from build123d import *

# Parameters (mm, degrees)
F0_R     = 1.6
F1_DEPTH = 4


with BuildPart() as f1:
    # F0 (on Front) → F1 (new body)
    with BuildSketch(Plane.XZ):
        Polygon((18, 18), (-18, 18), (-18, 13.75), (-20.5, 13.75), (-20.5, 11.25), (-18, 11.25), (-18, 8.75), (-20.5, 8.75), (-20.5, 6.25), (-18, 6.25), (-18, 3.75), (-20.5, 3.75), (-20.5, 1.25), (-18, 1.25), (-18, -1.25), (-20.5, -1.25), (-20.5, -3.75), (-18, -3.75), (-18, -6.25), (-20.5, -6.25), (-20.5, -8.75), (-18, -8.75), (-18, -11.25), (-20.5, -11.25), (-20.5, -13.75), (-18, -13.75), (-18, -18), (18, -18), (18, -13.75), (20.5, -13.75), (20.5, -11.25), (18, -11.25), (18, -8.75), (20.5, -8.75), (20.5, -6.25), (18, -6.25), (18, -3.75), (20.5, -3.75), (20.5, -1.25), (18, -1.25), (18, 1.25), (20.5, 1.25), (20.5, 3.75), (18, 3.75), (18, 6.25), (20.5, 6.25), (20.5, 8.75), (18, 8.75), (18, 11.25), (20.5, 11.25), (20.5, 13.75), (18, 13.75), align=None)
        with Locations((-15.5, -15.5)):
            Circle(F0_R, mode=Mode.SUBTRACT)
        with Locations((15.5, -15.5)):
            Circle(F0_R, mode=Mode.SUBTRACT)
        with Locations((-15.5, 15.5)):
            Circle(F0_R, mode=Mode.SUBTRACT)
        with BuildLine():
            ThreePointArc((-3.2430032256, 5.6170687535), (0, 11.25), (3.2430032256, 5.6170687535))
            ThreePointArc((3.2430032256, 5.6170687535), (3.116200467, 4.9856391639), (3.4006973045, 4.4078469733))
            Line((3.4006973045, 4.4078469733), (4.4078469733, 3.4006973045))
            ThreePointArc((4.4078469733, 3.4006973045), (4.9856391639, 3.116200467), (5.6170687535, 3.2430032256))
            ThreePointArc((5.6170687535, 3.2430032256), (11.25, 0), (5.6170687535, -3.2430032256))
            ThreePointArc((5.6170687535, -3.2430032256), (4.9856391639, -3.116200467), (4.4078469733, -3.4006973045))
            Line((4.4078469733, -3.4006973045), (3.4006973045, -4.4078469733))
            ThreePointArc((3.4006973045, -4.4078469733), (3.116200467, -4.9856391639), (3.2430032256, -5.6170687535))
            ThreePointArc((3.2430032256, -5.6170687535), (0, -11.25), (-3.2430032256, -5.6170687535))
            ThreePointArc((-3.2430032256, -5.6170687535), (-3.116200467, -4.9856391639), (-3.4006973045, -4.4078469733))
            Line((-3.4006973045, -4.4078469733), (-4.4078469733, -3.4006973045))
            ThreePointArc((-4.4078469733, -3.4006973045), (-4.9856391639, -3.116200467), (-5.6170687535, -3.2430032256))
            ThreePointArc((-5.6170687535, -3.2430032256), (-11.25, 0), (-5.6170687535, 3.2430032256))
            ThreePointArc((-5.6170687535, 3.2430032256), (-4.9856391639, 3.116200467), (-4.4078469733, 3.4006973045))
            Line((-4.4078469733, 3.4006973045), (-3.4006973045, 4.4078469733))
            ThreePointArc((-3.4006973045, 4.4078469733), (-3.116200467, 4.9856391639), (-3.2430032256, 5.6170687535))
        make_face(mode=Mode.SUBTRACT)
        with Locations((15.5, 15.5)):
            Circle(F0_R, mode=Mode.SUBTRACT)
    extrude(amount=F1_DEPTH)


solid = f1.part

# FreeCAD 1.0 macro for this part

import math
import FreeCAD as App
import Part
import Sketcher

doc = App.newDocument("Part")
body = doc.addObject("PartDesign::Body", "Body")

# Sketch on XZ plane
sketch1 = body.newObject("Sketcher::SketchObject", "Sketch")
sketch1.AttachmentSupport = (doc.getObject("XZ_Plane"), [""])
sketch1.MapMode = "FlatFace"
sketch1.addGeometry([
    Part.LineSegment(App.Vector(18, 18, 0), App.Vector(-18, 18, 0)),  # 0
    Part.LineSegment(App.Vector(-18, 18, 0), App.Vector(-18, 13.8, 0)),  # 1
    Part.LineSegment(App.Vector(-18, 13.8, 0), App.Vector(-20.5, 13.8, 0)),  # 2
    Part.LineSegment(App.Vector(-20.5, 13.8, 0), App.Vector(-20.5, 11.2, 0)),  # 3
    Part.LineSegment(App.Vector(-20.5, 11.2, 0), App.Vector(-18, 11.2, 0)),  # 4
    Part.LineSegment(App.Vector(-18, 11.2, 0), App.Vector(-18, 8.8, 0)),  # 5
    Part.LineSegment(App.Vector(-18, 8.8, 0), App.Vector(-20.5, 8.8, 0)),  # 6
    Part.LineSegment(App.Vector(-20.5, 8.8, 0), App.Vector(-20.5, 6.2, 0)),  # 7
    Part.LineSegment(App.Vector(-20.5, 6.2, 0), App.Vector(-18, 6.2, 0)),  # 8
    Part.LineSegment(App.Vector(-18, 6.2, 0), App.Vector(-18, 3.8, 0)),  # 9
    Part.LineSegment(App.Vector(-18, 3.8, 0), App.Vector(-20.5, 3.8, 0)),  # 10
    Part.LineSegment(App.Vector(-20.5, 3.8, 0), App.Vector(-20.5, 1.2, 0)),  # 11
    Part.LineSegment(App.Vector(-20.5, 1.2, 0), App.Vector(-18, 1.2, 0)),  # 12
    Part.LineSegment(App.Vector(-18, 1.2, 0), App.Vector(-18, -1.2, 0)),  # 13
    Part.LineSegment(App.Vector(-18, -1.2, 0), App.Vector(-20.5, -1.2, 0)),  # 14
    Part.LineSegment(App.Vector(-20.5, -1.2, 0), App.Vector(-20.5, -3.8, 0)),  # 15
    Part.LineSegment(App.Vector(-20.5, -3.8, 0), App.Vector(-18, -3.8, 0)),  # 16
    Part.LineSegment(App.Vector(-18, -3.8, 0), App.Vector(-18, -6.2, 0)),  # 17
    Part.LineSegment(App.Vector(-18, -6.2, 0), App.Vector(-20.5, -6.2, 0)),  # 18
    Part.LineSegment(App.Vector(-20.5, -6.2, 0), App.Vector(-20.5, -8.8, 0)),  # 19
    Part.LineSegment(App.Vector(-20.5, -8.8, 0), App.Vector(-18, -8.8, 0)),  # 20
    Part.LineSegment(App.Vector(-18, -8.8, 0), App.Vector(-18, -11.2, 0)),  # 21
    Part.LineSegment(App.Vector(-18, -11.2, 0), App.Vector(-20.5, -11.2, 0)),  # 22
    Part.LineSegment(App.Vector(-20.5, -11.2, 0), App.Vector(-20.5, -13.8, 0)),  # 23
    Part.LineSegment(App.Vector(-20.5, -13.8, 0), App.Vector(-18, -13.8, 0)),  # 24
    Part.LineSegment(App.Vector(-18, -13.8, 0), App.Vector(-18, -18, 0)),  # 25
    Part.LineSegment(App.Vector(-18, -18, 0), App.Vector(18, -18, 0)),  # 26
    Part.LineSegment(App.Vector(18, -18, 0), App.Vector(18, -13.8, 0)),  # 27
    Part.LineSegment(App.Vector(18, -13.8, 0), App.Vector(20.5, -13.8, 0)),  # 28
    Part.LineSegment(App.Vector(20.5, -13.8, 0), App.Vector(20.5, -11.2, 0)),  # 29
    Part.LineSegment(App.Vector(20.5, -11.2, 0), App.Vector(18, -11.2, 0)),  # 30
    Part.LineSegment(App.Vector(18, -11.2, 0), App.Vector(18, -8.8, 0)),  # 31
    Part.LineSegment(App.Vector(18, -8.8, 0), App.Vector(20.5, -8.8, 0)),  # 32
    Part.LineSegment(App.Vector(20.5, -8.8, 0), App.Vector(20.5, -6.2, 0)),  # 33
    Part.LineSegment(App.Vector(20.5, -6.2, 0), App.Vector(18, -6.2, 0)),  # 34
    Part.LineSegment(App.Vector(18, -6.2, 0), App.Vector(18, -3.8, 0)),  # 35
    Part.LineSegment(App.Vector(18, -3.8, 0), App.Vector(20.5, -3.8, 0)),  # 36
    Part.LineSegment(App.Vector(20.5, -3.8, 0), App.Vector(20.5, -1.2, 0)),  # 37
    Part.LineSegment(App.Vector(20.5, -1.2, 0), App.Vector(18, -1.2, 0)),  # 38
    Part.LineSegment(App.Vector(18, -1.2, 0), App.Vector(18, 1.2, 0)),  # 39
    Part.LineSegment(App.Vector(18, 1.2, 0), App.Vector(20.5, 1.2, 0)),  # 40
    Part.LineSegment(App.Vector(20.5, 1.2, 0), App.Vector(20.5, 3.8, 0)),  # 41
    Part.LineSegment(App.Vector(20.5, 3.8, 0), App.Vector(18, 3.8, 0)),  # 42
    Part.LineSegment(App.Vector(18, 3.8, 0), App.Vector(18, 6.2, 0)),  # 43
    Part.LineSegment(App.Vector(18, 6.2, 0), App.Vector(20.5, 6.2, 0)),  # 44
    Part.LineSegment(App.Vector(20.5, 6.2, 0), App.Vector(20.5, 8.8, 0)),  # 45
    Part.LineSegment(App.Vector(20.5, 8.8, 0), App.Vector(18, 8.8, 0)),  # 46
    Part.LineSegment(App.Vector(18, 8.8, 0), App.Vector(18, 11.2, 0)),  # 47
    Part.LineSegment(App.Vector(18, 11.2, 0), App.Vector(20.5, 11.2, 0)),  # 48
    Part.LineSegment(App.Vector(20.5, 11.2, 0), App.Vector(20.5, 13.8, 0)),  # 49
    Part.LineSegment(App.Vector(20.5, 13.8, 0), App.Vector(18, 13.8, 0)),  # 50
    Part.LineSegment(App.Vector(18, 13.8, 0), App.Vector(18, 18, 0)),  # 51
    Part.Circle(App.Vector(-15.5, -15.5, 0), App.Vector(0, 0, 1), 1.6),  # 52
    Part.Circle(App.Vector(15.5, -15.5, 0), App.Vector(0, 0, 1), 1.6),  # 53
    Part.Circle(App.Vector(-15.5, 15.5, 0), App.Vector(0, 0, 1), 1.6),  # 54
    Part.ArcOfCircle(Part.Circle(App.Vector(-4.1, 5.1, 0), App.Vector(0, 0, 1), 1), math.radians(-45), math.radians(30)),  # 55
    Part.ArcOfCircle(Part.Circle(App.Vector(0, 7.5, 0), App.Vector(0, 0, 1), 3.8), math.radians(-30), math.radians(210)),  # 56
    Part.ArcOfCircle(Part.Circle(App.Vector(4.1, 5.1, 0), App.Vector(0, 0, 1), 1), math.radians(150), math.radians(225)),  # 57
    Part.LineSegment(App.Vector(3.4, 4.4, 0), App.Vector(4.4, 3.4, 0)),  # 58
    Part.ArcOfCircle(Part.Circle(App.Vector(5.1, 4.1, 0), App.Vector(0, 0, 1), 1), math.radians(-135), math.radians(-60)),  # 59
    Part.ArcOfCircle(Part.Circle(App.Vector(7.5, 0, 0), App.Vector(0, 0, 1), 3.8), math.radians(-120), math.radians(120)),  # 60
    Part.ArcOfCircle(Part.Circle(App.Vector(5.1, -4.1, 0), App.Vector(0, 0, 1), 1), math.radians(60), math.radians(135)),  # 61
    Part.LineSegment(App.Vector(4.4, -3.4, 0), App.Vector(3.4, -4.4, 0)),  # 62
    Part.ArcOfCircle(Part.Circle(App.Vector(4.1, -5.1, 0), App.Vector(0, 0, 1), 1), math.radians(135), math.radians(210)),  # 63
    Part.ArcOfCircle(Part.Circle(App.Vector(0, -7.5, 0), App.Vector(0, 0, 1), 3.8), math.radians(150), math.radians(390)),  # 64
    Part.ArcOfCircle(Part.Circle(App.Vector(-4.1, -5.1, 0), App.Vector(0, 0, 1), 1), math.radians(-30), math.radians(45)),  # 65
    Part.LineSegment(App.Vector(-3.4, -4.4, 0), App.Vector(-4.4, -3.4, 0)),  # 66
    Part.ArcOfCircle(Part.Circle(App.Vector(-5.1, -4.1, 0), App.Vector(0, 0, 1), 1), math.radians(45), math.radians(120)),  # 67
    Part.ArcOfCircle(Part.Circle(App.Vector(-7.5, 0, 0), App.Vector(0, 0, 1), 3.8), math.radians(60), math.radians(300)),  # 68
    Part.ArcOfCircle(Part.Circle(App.Vector(-5.1, 4.1, 0), App.Vector(0, 0, 1), 1), math.radians(-120), math.radians(-45)),  # 69
    Part.LineSegment(App.Vector(-4.4, 3.4, 0), App.Vector(-3.4, 4.4, 0)),  # 70
    Part.Circle(App.Vector(15.5, 15.5, 0), App.Vector(0, 0, 1), 1.6),  # 71
], False)
sketch1.addConstraint([
    Sketcher.Constraint("Coincident", 0, 2, 1, 1),
    Sketcher.Constraint("Coincident", 1, 2, 2, 1),
    Sketcher.Constraint("Coincident", 2, 2, 3, 1),
    Sketcher.Constraint("Coincident", 3, 2, 4, 1),
    Sketcher.Constraint("Coincident", 4, 2, 5, 1),
    Sketcher.Constraint("Coincident", 5, 2, 6, 1),
    Sketcher.Constraint("Coincident", 6, 2, 7, 1),
    Sketcher.Constraint("Coincident", 7, 2, 8, 1),
    Sketcher.Constraint("Coincident", 8, 2, 9, 1),
    Sketcher.Constraint("Coincident", 9, 2, 10, 1),
    Sketcher.Constraint("Coincident", 10, 2, 11, 1),
    Sketcher.Constraint("Coincident", 11, 2, 12, 1),
    Sketcher.Constraint("Coincident", 12, 2, 13, 1),
    Sketcher.Constraint("Coincident", 13, 2, 14, 1),
    Sketcher.Constraint("Coincident", 14, 2, 15, 1),
    Sketcher.Constraint("Coincident", 15, 2, 16, 1),
    Sketcher.Constraint("Coincident", 16, 2, 17, 1),
    Sketcher.Constraint("Coincident", 17, 2, 18, 1),
    Sketcher.Constraint("Coincident", 18, 2, 19, 1),
    Sketcher.Constraint("Coincident", 19, 2, 20, 1),
    Sketcher.Constraint("Coincident", 20, 2, 21, 1),
    Sketcher.Constraint("Coincident", 21, 2, 22, 1),
    Sketcher.Constraint("Coincident", 22, 2, 23, 1),
    Sketcher.Constraint("Coincident", 23, 2, 24, 1),
    Sketcher.Constraint("Coincident", 24, 2, 25, 1),
    Sketcher.Constraint("Coincident", 25, 2, 26, 1),
    Sketcher.Constraint("Coincident", 26, 2, 27, 1),
    Sketcher.Constraint("Coincident", 27, 2, 28, 1),
    Sketcher.Constraint("Coincident", 28, 2, 29, 1),
    Sketcher.Constraint("Coincident", 29, 2, 30, 1),
    Sketcher.Constraint("Coincident", 30, 2, 31, 1),
    Sketcher.Constraint("Coincident", 31, 2, 32, 1),
    Sketcher.Constraint("Coincident", 32, 2, 33, 1),
    Sketcher.Constraint("Coincident", 33, 2, 34, 1),
    Sketcher.Constraint("Coincident", 34, 2, 35, 1),
    Sketcher.Constraint("Coincident", 35, 2, 36, 1),
    Sketcher.Constraint("Coincident", 36, 2, 37, 1),
    Sketcher.Constraint("Coincident", 37, 2, 38, 1),
    Sketcher.Constraint("Coincident", 38, 2, 39, 1),
    Sketcher.Constraint("Coincident", 39, 2, 40, 1),
    Sketcher.Constraint("Coincident", 40, 2, 41, 1),
    Sketcher.Constraint("Coincident", 41, 2, 42, 1),
    Sketcher.Constraint("Coincident", 42, 2, 43, 1),
    Sketcher.Constraint("Coincident", 43, 2, 44, 1),
    Sketcher.Constraint("Coincident", 44, 2, 45, 1),
    Sketcher.Constraint("Coincident", 45, 2, 46, 1),
    Sketcher.Constraint("Coincident", 46, 2, 47, 1),
    Sketcher.Constraint("Coincident", 47, 2, 48, 1),
    Sketcher.Constraint("Coincident", 48, 2, 49, 1),
    Sketcher.Constraint("Coincident", 49, 2, 50, 1),
    Sketcher.Constraint("Coincident", 50, 2, 51, 1),
    Sketcher.Constraint("Coincident", 51, 2, 0, 1),
    Sketcher.Constraint("Tangent", 55, 2, 56, 2),
    Sketcher.Constraint("Tangent", 56, 1, 57, 1),
    Sketcher.Constraint("Tangent", 57, 2, 58, 1),
    Sketcher.Constraint("Tangent", 58, 2, 59, 1),
    Sketcher.Constraint("Tangent", 59, 2, 60, 2),
    Sketcher.Constraint("Tangent", 60, 1, 61, 1),
    Sketcher.Constraint("Tangent", 61, 2, 62, 1),
    Sketcher.Constraint("Tangent", 62, 2, 63, 1),
    Sketcher.Constraint("Tangent", 63, 2, 64, 2),
    Sketcher.Constraint("Tangent", 64, 1, 65, 1),
    Sketcher.Constraint("Tangent", 65, 2, 66, 1),
    Sketcher.Constraint("Tangent", 66, 2, 67, 1),
    Sketcher.Constraint("Tangent", 67, 2, 68, 2),
    Sketcher.Constraint("Tangent", 68, 1, 69, 1),
    Sketcher.Constraint("Tangent", 69, 2, 70, 1),
    Sketcher.Constraint("Tangent", 70, 2, 55, 1),
    Sketcher.Constraint("Horizontal", 0),
    Sketcher.Constraint("Vertical", 1),
    Sketcher.Constraint("Horizontal", 2),
    Sketcher.Constraint("Vertical", 3),
    Sketcher.Constraint("Horizontal", 4),
    Sketcher.Constraint("Vertical", 5),
    Sketcher.Constraint("Horizontal", 6),
    Sketcher.Constraint("Vertical", 7),
    Sketcher.Constraint("Horizontal", 8),
    Sketcher.Constraint("Vertical", 9),
    Sketcher.Constraint("Horizontal", 10),
    Sketcher.Constraint("Vertical", 11),
    Sketcher.Constraint("Horizontal", 12),
    Sketcher.Constraint("Vertical", 13),
    Sketcher.Constraint("Horizontal", 14),
    Sketcher.Constraint("Vertical", 15),
    Sketcher.Constraint("Horizontal", 16),
    Sketcher.Constraint("Vertical", 17),
    Sketcher.Constraint("Horizontal", 18),
    Sketcher.Constraint("Vertical", 19),
    Sketcher.Constraint("Horizontal", 20),
    Sketcher.Constraint("Vertical", 21),
    Sketcher.Constraint("Horizontal", 22),
    Sketcher.Constraint("Vertical", 23),
    Sketcher.Constraint("Horizontal", 24),
    Sketcher.Constraint("Vertical", 25),
    Sketcher.Constraint("Horizontal", 26),
    Sketcher.Constraint("Vertical", 27),
    Sketcher.Constraint("Horizontal", 28),
    Sketcher.Constraint("Vertical", 29),
    Sketcher.Constraint("Horizontal", 30),
    Sketcher.Constraint("Vertical", 31),
    Sketcher.Constraint("Horizontal", 32),
    Sketcher.Constraint("Vertical", 33),
    Sketcher.Constraint("Horizontal", 34),
    Sketcher.Constraint("Vertical", 35),
    Sketcher.Constraint("Horizontal", 36),
    Sketcher.Constraint("Vertical", 37),
    Sketcher.Constraint("Horizontal", 38),
    Sketcher.Constraint("Vertical", 39),
    Sketcher.Constraint("Horizontal", 40),
    Sketcher.Constraint("Vertical", 41),
    Sketcher.Constraint("Horizontal", 42),
    Sketcher.Constraint("Vertical", 43),
    Sketcher.Constraint("Horizontal", 44),
    Sketcher.Constraint("Vertical", 45),
    Sketcher.Constraint("Horizontal", 46),
    Sketcher.Constraint("Vertical", 47),
    Sketcher.Constraint("Horizontal", 48),
    Sketcher.Constraint("Vertical", 49),
    Sketcher.Constraint("Horizontal", 50),
    Sketcher.Constraint("Vertical", 51),
    Sketcher.Constraint("Equal", 52, 53),
    Sketcher.Constraint("Equal", 53, 54),
    Sketcher.Constraint("Equal", 55, 57),
    Sketcher.Constraint("Equal", 57, 59),
    Sketcher.Constraint("Equal", 56, 60),
    Sketcher.Constraint("Equal", 59, 61),
    Sketcher.Constraint("Equal", 61, 63),
    Sketcher.Constraint("Equal", 60, 64),
    Sketcher.Constraint("Equal", 63, 65),
    Sketcher.Constraint("Equal", 65, 67),
    Sketcher.Constraint("Equal", 64, 68),
    Sketcher.Constraint("Equal", 67, 69),
    Sketcher.Constraint("Equal", 54, 71),
    Sketcher.Constraint("Symmetric", 53, 3, 54, 3, -1, 1),
    Sketcher.Constraint("Symmetric", 55, 3, 63, 3, -1, 1),
    Sketcher.Constraint("Symmetric", 57, 3, 65, 3, -1, 1),
    Sketcher.Constraint("Symmetric", 59, 3, 67, 3, -1, 1),
    Sketcher.Constraint("Symmetric", 61, 3, 69, 3, -1, 1),
    Sketcher.Constraint("Symmetric", 52, 3, 71, 3, -1, 1),
    Sketcher.Constraint("Symmetric", 0, 2, 26, 2, -1, 1),
    Sketcher.Constraint("Symmetric", 2, 2, 28, 2, -1, 1),
    Sketcher.Constraint("Symmetric", 4, 2, 30, 2, -1, 1),
    Sketcher.Constraint("Symmetric", 6, 2, 32, 2, -1, 1),
    Sketcher.Constraint("Symmetric", 8, 2, 34, 2, -1, 1),
    Sketcher.Constraint("Symmetric", 10, 2, 36, 2, -1, 1),
    Sketcher.Constraint("Symmetric", 12, 2, 38, 2, -1, 1),
    Sketcher.Constraint("Symmetric", 14, 2, 40, 2, -1, 1),
    Sketcher.Constraint("Symmetric", 16, 2, 42, 2, -1, 1),
    Sketcher.Constraint("Symmetric", 18, 2, 44, 2, -1, 1),
    Sketcher.Constraint("Symmetric", 20, 2, 46, 2, -1, 1),
    Sketcher.Constraint("Symmetric", 22, 2, 48, 2, -1, 1),
    Sketcher.Constraint("Symmetric", 24, 2, 50, 2, -1, 1),
    Sketcher.Constraint("Symmetric", 52, 3, 53, 3, -2),
    Sketcher.Constraint("Symmetric", 55, 3, 57, 3, -2),
    Sketcher.Constraint("Symmetric", 61, 3, 67, 3, -2),
    Sketcher.Constraint("Symmetric", 24, 2, 27, 2, -2),
    Sketcher.Constraint("Symmetric", 22, 2, 29, 2, -2),
    Sketcher.Constraint("Symmetric", 20, 2, 31, 2, -2),
    Sketcher.Constraint("Symmetric", 18, 2, 33, 2, -2),
    Sketcher.Constraint("Symmetric", 16, 2, 35, 2, -2),
    Sketcher.Constraint("Symmetric", 14, 2, 37, 2, -2),
    Sketcher.Constraint("Perpendicular", 58, 62),
    Sketcher.Constraint("Vertical", 1, 2, 4, 2),
    Sketcher.Constraint("Vertical", 3, 2, 6, 2),
    Sketcher.Constraint("Vertical", 5, 2, 8, 2),
    Sketcher.Constraint("Vertical", 7, 2, 10, 2),
    Sketcher.Constraint("Vertical", 9, 2, 12, 2),
    Sketcher.Constraint("Equal", 50, 3),
    Sketcher.Constraint("Equal", 3, 5),
    Sketcher.Constraint("Equal", 5, 7),
    Sketcher.Constraint("Equal", 7, 9),
    Sketcher.Constraint("Equal", 9, 11),
    Sketcher.Constraint("Equal", 11, 13),
    Sketcher.Constraint("Radius", 55, 1.0),
    Sketcher.Constraint("Diameter", 52, 3.2),
    Sketcher.Constraint("DistanceX", 0, 2, 0, 1, 36.0),
    Sketcher.Constraint("Radius", 56, 3.75),
    Sketcher.Constraint("DistanceX", 2, 2, 2, 1, 2.5),
    Sketcher.Constraint("DistanceY", -1, 1, 0, 2, 18.0),
    Sketcher.Constraint("DistanceX", 52, 3, -1, 1, 15.5),
    Sketcher.Constraint("DistanceY", 52, 3, -1, 1, 15.5),
    Sketcher.Constraint("DistanceY", -1, 1, 56, 3, 7.5),
    Sketcher.Constraint("DistanceX", -1, 1, 60, 3, 7.5),
    Sketcher.Constraint("DistanceY", -1, 1, 55, 2, 5.617069),
])
pad1 = body.newObject("PartDesign::Pad", "Pad")
pad1.Profile = sketch1
pad1.Length = 4

doc.recompute()
